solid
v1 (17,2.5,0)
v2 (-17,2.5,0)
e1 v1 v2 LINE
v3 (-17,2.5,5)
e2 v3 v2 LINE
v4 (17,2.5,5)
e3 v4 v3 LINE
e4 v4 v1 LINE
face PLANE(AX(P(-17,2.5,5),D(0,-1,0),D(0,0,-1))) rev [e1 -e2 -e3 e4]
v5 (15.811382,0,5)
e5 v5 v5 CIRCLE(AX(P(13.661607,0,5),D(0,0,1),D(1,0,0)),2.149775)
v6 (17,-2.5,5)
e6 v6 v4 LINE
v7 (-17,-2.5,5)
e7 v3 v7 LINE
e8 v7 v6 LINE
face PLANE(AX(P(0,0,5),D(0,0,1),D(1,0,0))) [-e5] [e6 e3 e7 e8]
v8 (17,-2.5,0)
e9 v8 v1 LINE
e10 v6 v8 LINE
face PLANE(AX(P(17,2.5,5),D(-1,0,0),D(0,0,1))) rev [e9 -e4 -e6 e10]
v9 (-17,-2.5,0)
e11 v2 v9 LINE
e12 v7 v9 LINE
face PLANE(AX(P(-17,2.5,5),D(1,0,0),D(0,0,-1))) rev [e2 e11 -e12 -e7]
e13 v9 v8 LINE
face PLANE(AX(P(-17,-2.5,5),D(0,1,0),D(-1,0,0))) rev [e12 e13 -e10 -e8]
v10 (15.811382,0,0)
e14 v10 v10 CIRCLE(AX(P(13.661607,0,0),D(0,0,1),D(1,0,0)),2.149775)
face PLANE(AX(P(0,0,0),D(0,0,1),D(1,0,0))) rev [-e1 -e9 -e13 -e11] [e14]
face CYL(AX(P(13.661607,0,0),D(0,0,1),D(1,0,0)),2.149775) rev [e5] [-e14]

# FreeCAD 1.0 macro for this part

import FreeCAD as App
import Part
import Sketcher
from FreeCAD import Vector
Q = App.Units.Quantity

doc = App.newDocument("Part")
body = doc.addObject("PartDesign::Body", "Body")

# Sketch on XY plane
sketch1 = body.newObject("Sketcher::SketchObject", "Sketch")
sketch1.AttachmentSupport = (doc.getObject("XY_Plane"), [""])
sketch1.MapMode = "FlatFace"
sketch1.addGeometry([
    Part.LineSegment(Vector(-17, 2, 0), Vector(-17, -2, 0)),
    Part.LineSegment(Vector(-17, -2, 0), Vector(17, -2, 0)),
    Part.LineSegment(Vector(17, -2, 0), Vector(17, 2, 0)),
    Part.LineSegment(Vector(17, 2, 0), Vector(-17, 2, 0)),
], False)
sketch1.addConstraint([
    Sketcher.Constraint("Coincident", 0, 2, 1, 1),
    Sketcher.Constraint("Coincident", 1, 2, 2, 1),
    Sketcher.Constraint("Coincident", 2, 2, 3, 1),
    Sketcher.Constraint("Coincident", 3, 2, 0, 1),
    Sketcher.Constraint("Vertical", 0),
    Sketcher.Constraint("Horizontal", 1),
    Sketcher.Constraint("Vertical", 2),
    Sketcher.Constraint("Horizontal", 3),
    Sketcher.Constraint("Symmetric", 0, 2, 2, 2, -1, 1),
    Sketcher.Constraint("DistanceX", 1, 1, 1, 2, Q("34 mm")),
    Sketcher.Constraint("DistanceY", 0, 2, 0, 1, Q("5 mm")),
])
pad1 = body.newObject("PartDesign::Pad", "Pad")
pad1.Profile = sketch1
pad1.Length = 5

# Sketch on XY plane
sketch2 = body.newObject("Sketcher::SketchObject", "Sketch001")
sketch2.AttachmentSupport = (doc.getObject("XY_Plane"), [""])
sketch2.MapMode = "FlatFace"
sketch2.AttachmentOffset = App.Placement(Vector(0, 0, 5), App.Rotation())
sketch2.addGeometry(Part.Circle(Vector(13.7, 0, 0), Vector(0, 0, 1), 2.1), False)
sketch2.addConstraint([
    Sketcher.Constraint("PointOnObject", 0, 3, -1),
    Sketcher.Constraint("Diameter", 0, Q("4.29955 mm")),
    Sketcher.Constraint("DistanceX", -1, 1, 0, 3, Q("13.661607 mm")),
])
pocket1 = body.newObject("PartDesign::Pocket", "Pocket")
pocket1.Profile = sketch2
pocket1.Length = 5

doc.recompute()
